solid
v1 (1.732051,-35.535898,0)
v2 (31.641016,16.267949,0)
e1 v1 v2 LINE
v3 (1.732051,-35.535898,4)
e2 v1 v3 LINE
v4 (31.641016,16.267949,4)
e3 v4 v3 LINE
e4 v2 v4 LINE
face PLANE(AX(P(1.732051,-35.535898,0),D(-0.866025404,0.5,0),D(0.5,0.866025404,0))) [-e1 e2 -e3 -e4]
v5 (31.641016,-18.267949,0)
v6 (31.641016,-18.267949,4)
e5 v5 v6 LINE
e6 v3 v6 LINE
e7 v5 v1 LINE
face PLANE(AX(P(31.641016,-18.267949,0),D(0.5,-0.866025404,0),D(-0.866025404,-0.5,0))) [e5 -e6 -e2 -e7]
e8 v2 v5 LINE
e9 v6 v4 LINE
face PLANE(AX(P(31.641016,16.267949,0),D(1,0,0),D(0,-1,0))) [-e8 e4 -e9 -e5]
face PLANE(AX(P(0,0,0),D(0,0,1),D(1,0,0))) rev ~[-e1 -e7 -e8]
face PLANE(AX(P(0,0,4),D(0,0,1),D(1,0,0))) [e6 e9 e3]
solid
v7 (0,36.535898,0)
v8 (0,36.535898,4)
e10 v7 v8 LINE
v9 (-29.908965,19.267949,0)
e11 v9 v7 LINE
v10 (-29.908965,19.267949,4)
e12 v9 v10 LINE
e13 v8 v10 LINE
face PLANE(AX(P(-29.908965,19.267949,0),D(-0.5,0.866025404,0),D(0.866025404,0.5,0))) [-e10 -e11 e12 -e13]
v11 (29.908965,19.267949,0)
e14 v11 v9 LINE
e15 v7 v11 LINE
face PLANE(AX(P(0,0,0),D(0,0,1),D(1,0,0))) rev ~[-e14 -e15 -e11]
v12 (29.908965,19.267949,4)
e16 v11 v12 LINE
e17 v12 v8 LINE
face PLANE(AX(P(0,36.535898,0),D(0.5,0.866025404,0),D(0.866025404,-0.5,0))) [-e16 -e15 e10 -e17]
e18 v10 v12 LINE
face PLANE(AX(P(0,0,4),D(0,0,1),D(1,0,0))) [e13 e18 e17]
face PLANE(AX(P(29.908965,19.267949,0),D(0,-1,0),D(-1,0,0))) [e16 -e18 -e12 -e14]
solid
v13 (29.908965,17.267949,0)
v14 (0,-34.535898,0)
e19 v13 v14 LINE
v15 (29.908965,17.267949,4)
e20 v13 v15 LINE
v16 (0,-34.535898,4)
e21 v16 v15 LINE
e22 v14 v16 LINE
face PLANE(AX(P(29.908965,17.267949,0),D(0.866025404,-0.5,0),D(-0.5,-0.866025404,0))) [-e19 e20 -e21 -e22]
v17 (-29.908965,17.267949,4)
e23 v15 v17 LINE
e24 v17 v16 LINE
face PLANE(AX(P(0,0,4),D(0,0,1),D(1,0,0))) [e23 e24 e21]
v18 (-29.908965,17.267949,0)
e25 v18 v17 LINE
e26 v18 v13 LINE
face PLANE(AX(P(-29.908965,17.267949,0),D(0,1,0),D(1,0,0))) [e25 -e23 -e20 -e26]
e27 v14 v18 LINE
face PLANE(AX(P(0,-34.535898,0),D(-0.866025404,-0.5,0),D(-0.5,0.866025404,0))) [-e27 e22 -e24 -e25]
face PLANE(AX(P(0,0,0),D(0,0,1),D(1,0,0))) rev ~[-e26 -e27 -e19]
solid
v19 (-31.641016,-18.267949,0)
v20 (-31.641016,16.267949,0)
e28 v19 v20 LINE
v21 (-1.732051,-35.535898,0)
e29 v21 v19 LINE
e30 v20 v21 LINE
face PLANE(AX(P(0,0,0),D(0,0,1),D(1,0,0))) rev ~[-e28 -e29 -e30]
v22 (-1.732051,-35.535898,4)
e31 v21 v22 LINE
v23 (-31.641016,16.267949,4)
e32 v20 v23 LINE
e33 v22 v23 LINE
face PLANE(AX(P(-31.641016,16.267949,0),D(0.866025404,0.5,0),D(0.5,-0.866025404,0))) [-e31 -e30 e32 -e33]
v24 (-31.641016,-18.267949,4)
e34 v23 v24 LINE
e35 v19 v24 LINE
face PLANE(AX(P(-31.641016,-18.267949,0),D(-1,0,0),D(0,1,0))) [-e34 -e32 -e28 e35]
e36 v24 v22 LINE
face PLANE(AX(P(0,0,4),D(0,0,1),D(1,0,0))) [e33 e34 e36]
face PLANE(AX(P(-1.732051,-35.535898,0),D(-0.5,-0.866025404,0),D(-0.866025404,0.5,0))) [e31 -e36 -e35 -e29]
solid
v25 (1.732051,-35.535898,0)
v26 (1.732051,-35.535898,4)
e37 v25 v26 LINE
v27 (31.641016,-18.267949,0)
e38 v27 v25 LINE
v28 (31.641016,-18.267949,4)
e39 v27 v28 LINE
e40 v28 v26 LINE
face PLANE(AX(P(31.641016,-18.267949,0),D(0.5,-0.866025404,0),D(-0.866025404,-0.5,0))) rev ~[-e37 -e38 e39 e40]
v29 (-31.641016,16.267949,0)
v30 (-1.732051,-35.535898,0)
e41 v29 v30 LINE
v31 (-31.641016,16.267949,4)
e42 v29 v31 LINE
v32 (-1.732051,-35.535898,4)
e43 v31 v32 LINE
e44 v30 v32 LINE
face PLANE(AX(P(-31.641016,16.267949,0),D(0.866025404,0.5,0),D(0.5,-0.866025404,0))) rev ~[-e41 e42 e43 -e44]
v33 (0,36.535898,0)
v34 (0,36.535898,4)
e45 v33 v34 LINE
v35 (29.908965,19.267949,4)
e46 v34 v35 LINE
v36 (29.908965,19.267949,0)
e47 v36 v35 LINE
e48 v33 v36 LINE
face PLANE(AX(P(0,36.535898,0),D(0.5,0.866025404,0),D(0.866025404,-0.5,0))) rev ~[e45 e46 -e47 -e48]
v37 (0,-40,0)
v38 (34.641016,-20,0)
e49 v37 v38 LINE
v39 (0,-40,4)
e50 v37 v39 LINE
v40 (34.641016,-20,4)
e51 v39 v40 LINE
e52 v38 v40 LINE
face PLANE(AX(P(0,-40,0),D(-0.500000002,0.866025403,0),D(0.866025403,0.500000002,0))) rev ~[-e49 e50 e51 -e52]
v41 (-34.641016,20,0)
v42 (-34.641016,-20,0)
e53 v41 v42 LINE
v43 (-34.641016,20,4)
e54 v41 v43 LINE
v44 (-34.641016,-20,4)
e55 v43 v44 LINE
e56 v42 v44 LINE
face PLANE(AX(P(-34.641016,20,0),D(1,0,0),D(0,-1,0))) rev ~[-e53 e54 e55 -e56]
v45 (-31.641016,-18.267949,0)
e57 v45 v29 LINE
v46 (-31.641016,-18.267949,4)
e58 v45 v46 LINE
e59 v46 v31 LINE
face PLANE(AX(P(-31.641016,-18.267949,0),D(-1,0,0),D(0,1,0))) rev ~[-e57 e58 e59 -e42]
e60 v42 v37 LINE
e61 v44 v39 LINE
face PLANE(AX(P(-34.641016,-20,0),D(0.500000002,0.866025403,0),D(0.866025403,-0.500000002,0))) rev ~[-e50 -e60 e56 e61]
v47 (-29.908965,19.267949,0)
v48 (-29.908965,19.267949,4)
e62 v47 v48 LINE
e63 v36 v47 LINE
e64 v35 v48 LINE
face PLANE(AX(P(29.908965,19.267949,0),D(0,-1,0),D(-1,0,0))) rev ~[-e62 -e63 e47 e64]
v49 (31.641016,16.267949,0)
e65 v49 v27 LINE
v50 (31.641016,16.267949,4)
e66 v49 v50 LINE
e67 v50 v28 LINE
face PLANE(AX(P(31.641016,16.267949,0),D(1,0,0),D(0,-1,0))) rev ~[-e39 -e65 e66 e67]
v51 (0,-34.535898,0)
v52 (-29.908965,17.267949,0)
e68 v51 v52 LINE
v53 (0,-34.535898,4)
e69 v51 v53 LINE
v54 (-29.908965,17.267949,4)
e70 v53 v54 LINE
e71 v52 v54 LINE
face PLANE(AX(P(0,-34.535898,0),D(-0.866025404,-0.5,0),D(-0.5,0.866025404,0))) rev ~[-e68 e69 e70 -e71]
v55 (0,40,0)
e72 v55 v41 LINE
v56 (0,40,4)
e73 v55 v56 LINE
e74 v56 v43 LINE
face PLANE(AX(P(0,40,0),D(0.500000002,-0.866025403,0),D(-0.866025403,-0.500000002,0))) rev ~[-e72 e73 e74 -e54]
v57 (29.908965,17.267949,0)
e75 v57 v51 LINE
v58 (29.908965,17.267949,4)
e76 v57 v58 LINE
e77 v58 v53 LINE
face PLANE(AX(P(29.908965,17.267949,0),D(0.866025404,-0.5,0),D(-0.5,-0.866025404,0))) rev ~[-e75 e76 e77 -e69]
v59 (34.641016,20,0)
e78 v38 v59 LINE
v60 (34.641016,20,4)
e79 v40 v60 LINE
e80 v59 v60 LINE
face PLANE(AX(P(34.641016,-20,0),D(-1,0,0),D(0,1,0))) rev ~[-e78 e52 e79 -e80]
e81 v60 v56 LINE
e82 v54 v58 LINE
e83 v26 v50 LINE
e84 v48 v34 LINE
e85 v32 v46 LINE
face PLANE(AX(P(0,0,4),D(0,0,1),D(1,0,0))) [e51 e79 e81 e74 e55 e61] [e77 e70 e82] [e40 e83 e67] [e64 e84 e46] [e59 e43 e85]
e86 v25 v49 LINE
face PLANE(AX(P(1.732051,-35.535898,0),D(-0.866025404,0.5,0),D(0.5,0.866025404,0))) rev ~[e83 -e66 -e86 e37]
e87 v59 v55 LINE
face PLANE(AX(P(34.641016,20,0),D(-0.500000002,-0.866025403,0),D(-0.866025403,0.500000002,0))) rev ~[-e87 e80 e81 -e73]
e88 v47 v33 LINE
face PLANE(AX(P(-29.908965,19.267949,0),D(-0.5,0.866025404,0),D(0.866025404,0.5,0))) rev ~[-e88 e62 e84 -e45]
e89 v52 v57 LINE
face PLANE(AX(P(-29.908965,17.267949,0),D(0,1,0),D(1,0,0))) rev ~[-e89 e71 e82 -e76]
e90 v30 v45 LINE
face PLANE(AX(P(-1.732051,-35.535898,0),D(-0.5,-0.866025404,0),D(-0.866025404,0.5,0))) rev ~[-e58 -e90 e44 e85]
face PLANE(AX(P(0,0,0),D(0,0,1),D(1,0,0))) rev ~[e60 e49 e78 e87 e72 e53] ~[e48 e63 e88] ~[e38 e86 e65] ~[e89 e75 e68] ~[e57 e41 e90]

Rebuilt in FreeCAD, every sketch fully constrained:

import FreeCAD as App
import Part
import Sketcher
from FreeCAD import Vector
Q = App.Units.Quantity


def add_polygon(sketch, points):
    """Adds a closed chain of lines whose ends are joined by coincident constraints."""
    first, n = sketch.GeometryCount, len(points)
    for a, b in zip(points, points[1:] + points[:1]):
        sketch.addGeometry(Part.LineSegment(App.Vector(*a, 0), App.Vector(*b, 0)), False)
    for i in range(n):
        sketch.addConstraint(Sketcher.Constraint("Coincident", first + i, 2, first + (i + 1) % n, 1))

doc = App.newDocument("Part")
body = doc.addObject("PartDesign::Body", "Body")
body.AllowCompound = True

# Sketch on XY plane
sketch1 = body.newObject("Sketcher::SketchObject", "Sketch")
sketch1.AttachmentSupport = (doc.getObject("XY_Plane"), [""])
sketch1.MapMode = "FlatFace"
add_polygon(sketch1, [(34.641016, -20), (34.641016, 20), (0, 40), (-34.641016, 20), (-34.641016, -20), (0, -40)])  # lines 0-5
sketch1.addConstraint([
    Sketcher.Constraint("Vertical", 0),
    Sketcher.Constraint("Vertical", 3),
    Sketcher.Constraint("Symmetric", 0, 2, 3, 2, -1, 1),
    Sketcher.Constraint("Symmetric", 1, 2, 4, 2, -1, 1),
    Sketcher.Constraint("PointOnObject", 1, 2, -2),
    Sketcher.Constraint("Parallel", 2, 5),
    Sketcher.Constraint("Horizontal", 0, 2, 2, 2),
    Sketcher.Constraint("DistanceY", 0, 1, 0, 2, Q("40 mm")),
    Sketcher.Constraint("Angle", 1, Q("150 deg")),
    Sketcher.Constraint("Distance", 1, Q("40 mm")),
])
pad1 = body.newObject("PartDesign::Pad", "Pad")
pad1.Profile = sketch1
pad1.Length = 4

# Sketch on XY plane
sketch2 = body.newObject("Sketcher::SketchObject", "Sketch001")
sketch2.AttachmentSupport = (doc.getObject("XY_Plane"), [""])
sketch2.MapMode = "FlatFace"
add_polygon(sketch2, [(-34.641016, -20), (0, -40), (34.641016, -20), (34.641016, 20), (0, 40), (-34.641016, 20)])  # lines 0-5
add_polygon(sketch2, [(-31.641016, 16.267949), (-1.732051, -35.535898), (-31.641016, -18.267949)])  # lines 6-8
add_polygon(sketch2, [(29.908965, 17.267949), (0, -34.535898), (-29.908965, 17.267949)])  # lines 9-11
add_polygon(sketch2, [(1.732051, -35.535898), (31.641016, 16.267949), (31.641016, -18.267949)])  # lines 12-14
add_polygon(sketch2, [(0, 36.535898), (29.908965, 19.267949), (-29.908965, 19.267949)])  # lines 15-17
sketch2.addConstraint([
    Sketcher.Constraint("Vertical", 2),
    Sketcher.Constraint("Vertical", 5),
    Sketcher.Constraint("Vertical", 8),
    Sketcher.Constraint("Horizontal", 11),
    Sketcher.Constraint("Vertical", 13),
    Sketcher.Constraint("Horizontal", 16),
    Sketcher.Constraint("Symmetric", 0, 2, 3, 2, -1, 1),
    Sketcher.Constraint("Symmetric", 1, 2, 4, 2, -1, 1),
    Sketcher.Constraint("Symmetric", 8, 2, 12, 2, -2),
    Sketcher.Constraint("Symmetric", 6, 2, 14, 2, -2),
    Sketcher.Constraint("PointOnObject", 0, 2, -2),
    Sketcher.Constraint("PointOnObject", 9, 2, -2),
    Sketcher.Constraint("PointOnObject", 17, 2, -2),
    Sketcher.Constraint("Parallel", 0, 3),
    Sketcher.Constraint("Perpendicular", 4, 6),
    Sketcher.Constraint("Parallel", 3, 7),
    Sketcher.Constraint("Perpendicular", 7, 9),
    Sketcher.Constraint("Parallel", 6, 10),
    Sketcher.Constraint("Parallel", 9, 12),
    Sketcher.Constraint("Perpendicular", 10, 14),
    Sketcher.Constraint("Perpendicular", 12, 15),
    Sketcher.Constraint("Parallel", 14, 17),
    Sketcher.Constraint("Vertical", 11, 2, 15, 2),
    Sketcher.Constraint("Equal", 6, 9),
    Sketcher.Constraint("DistanceY", 2, 1, 2, 2, Q("40 mm")),
    Sketcher.Constraint("Angle", 0, Q("-30 deg")),
    Sketcher.Constraint("Distance", 0, Q("40 mm")),
    Sketcher.Constraint("DistanceX", 5, 2, 7, 2, Q("3 mm")),
    Sketcher.Constraint("DistanceY", 6, 2, 9, 2, Q("1 mm")),
    Sketcher.Constraint("DistanceY", 11, 2, 15, 2, Q("2 mm")),
    Sketcher.Constraint("DistanceY", 8, 1, 8, 2, Q("34.535898 mm")),
    Sketcher.Constraint("DistanceY", 6, 2, -1, 1, Q("35.535898 mm")),
])
pocket1 = body.newObject("PartDesign::Pocket", "Pocket")
pocket1.Profile = sketch2
pocket1.Type = "ThroughAll"
pocket1.Reversed = True
body2 = doc.addObject("PartDesign::Body", "Body001")

# Sketch on XY plane
sketch3 = body2.newObject("Sketcher::SketchObject", "Sketch002")
sketch3.AttachmentSupport = (doc.getObject("XY_Plane001"), [""])
sketch3.MapMode = "FlatFace"
add_polygon(sketch3, [(-34.641016, -20), (0, -40), (34.641016, -20), (34.641016, 20), (0, 40), (-34.641016, 20)])  # lines 0-5
add_polygon(sketch3, [(-31.641016, 16.267949), (-1.732051, -35.535898), (-31.641016, -18.267949)])  # lines 6-8
add_polygon(sketch3, [(29.908965, 17.267949), (0, -34.535898), (-29.908965, 17.267949)])  # lines 9-11
add_polygon(sketch3, [(1.732051, -35.535898), (31.641016, 16.267949), (31.641016, -18.267949)])  # lines 12-14
add_polygon(sketch3, [(0, 36.535898), (29.908965, 19.267949), (-29.908965, 19.267949)])  # lines 15-17
sketch3.addConstraint([
    Sketcher.Constraint("Vertical", 2),
    Sketcher.Constraint("Vertical", 5),
    Sketcher.Constraint("Vertical", 8),
    Sketcher.Constraint("Horizontal", 11),
    Sketcher.Constraint("Vertical", 13),
    Sketcher.Constraint("Horizontal", 16),
    Sketcher.Constraint("Symmetric", 0, 2, 3, 2, -1, 1),
    Sketcher.Constraint("Symmetric", 1, 2, 4, 2, -1, 1),
    Sketcher.Constraint("Symmetric", 8, 2, 12, 2, -2),
    Sketcher.Constraint("Symmetric", 6, 2, 14, 2, -2),
    Sketcher.Constraint("PointOnObject", 0, 2, -2),
    Sketcher.Constraint("PointOnObject", 9, 2, -2),
    Sketcher.Constraint("PointOnObject", 17, 2, -2),
    Sketcher.Constraint("Parallel", 0, 3),
    Sketcher.Constraint("Perpendicular", 4, 6),
    Sketcher.Constraint("Parallel", 3, 7),
    Sketcher.Constraint("Perpendicular", 7, 9),
    Sketcher.Constraint("Parallel", 6, 10),
    Sketcher.Constraint("Parallel", 9, 12),
    Sketcher.Constraint("Perpendicular", 10, 14),
    Sketcher.Constraint("Perpendicular", 12, 15),
    Sketcher.Constraint("Parallel", 14, 17),
    Sketcher.Constraint("Vertical", 11, 2, 15, 2),
    Sketcher.Constraint("Equal", 6, 9),
    Sketcher.Constraint("DistanceY", 2, 1, 2, 2, Q("40 mm")),
    Sketcher.Constraint("Angle", 0, Q("-30 deg")),
    Sketcher.Constraint("Distance", 0, Q("40 mm")),
    Sketcher.Constraint("DistanceX", 5, 2, 7, 2, Q("3 mm")),
    Sketcher.Constraint("DistanceY", 6, 2, 9, 2, Q("1 mm")),
    Sketcher.Constraint("DistanceY", 11, 2, 15, 2, Q("2 mm")),
    Sketcher.Constraint("DistanceY", 8, 1, 8, 2, Q("34.535898 mm")),
    Sketcher.Constraint("DistanceY", 6, 2, -1, 1, Q("35.535898 mm")),
])
pad2 = body2.newObject("PartDesign::Pad", "Pad001")
pad2.Profile = sketch3
pad2.Length = 4

doc.recompute()
